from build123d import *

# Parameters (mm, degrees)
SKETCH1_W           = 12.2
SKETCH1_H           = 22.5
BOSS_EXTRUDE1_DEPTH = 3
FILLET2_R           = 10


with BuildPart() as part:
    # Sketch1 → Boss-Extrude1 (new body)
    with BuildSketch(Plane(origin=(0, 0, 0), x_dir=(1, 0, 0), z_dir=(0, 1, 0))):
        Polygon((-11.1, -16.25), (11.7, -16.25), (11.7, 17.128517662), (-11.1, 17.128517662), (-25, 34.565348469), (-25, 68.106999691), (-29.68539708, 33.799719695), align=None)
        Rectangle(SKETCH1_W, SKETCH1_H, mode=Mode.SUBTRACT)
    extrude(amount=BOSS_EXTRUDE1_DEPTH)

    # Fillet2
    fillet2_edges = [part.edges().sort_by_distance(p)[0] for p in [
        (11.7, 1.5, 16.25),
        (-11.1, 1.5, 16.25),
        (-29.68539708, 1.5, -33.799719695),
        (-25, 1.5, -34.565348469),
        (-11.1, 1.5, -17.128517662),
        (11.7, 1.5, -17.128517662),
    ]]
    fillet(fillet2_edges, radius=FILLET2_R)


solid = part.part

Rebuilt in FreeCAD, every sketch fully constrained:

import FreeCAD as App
import Part
import Sketcher
from FreeCAD import Vector
Q = App.Units.Quantity


def edges_at(feature, points):
    """Names of the edges that pass closest to the given points."""
    edges = feature.Shape.Edges
    near = lambda p: min(range(len(edges)), key=lambda i: edges[i].distToShape(Part.Vertex(*p))[0])
    return sorted({f"Edge{near(p) + 1}" for p in points})

doc = App.newDocument("Part")
body = doc.addObject("PartDesign::Body", "Body")

# Sketch on XZ plane
sketch1 = body.newObject("Sketcher::SketchObject", "Sketch")
sketch1.AttachmentSupport = (doc.getObject("XZ_Plane"), [""])
sketch1.MapMode = "FlatFace"
sketch1.addGeometry([
    Part.LineSegment(Vector(-11, 16, 0), Vector(12, 16, 0)),  # 0
    Part.LineSegment(Vector(12, 16, 0), Vector(12, -17, 0)),  # 1
    Part.LineSegment(Vector(12, -17, 0), Vector(-11, -17, 0)),  # 2
    Part.LineSegment(Vector(-11, -17, 0), Vector(-25, -35, 0)),  # 3
    Part.LineSegment(Vector(-25, -35, 0), Vector(-25, -68, 0)),  # 4
    Part.LineSegment(Vector(-25, -68, 0), Vector(-30, -34, 0)),  # 5
    Part.LineSegment(Vector(-30, -34, 0), Vector(-11, 16, 0)),  # 6
    Part.LineSegment(Vector(6, 11, 0), Vector(-6, 11, 0)),  # 7
    Part.LineSegment(Vector(-6, 11, 0), Vector(-6, -11, 0)),  # 8
    Part.LineSegment(Vector(-6, -11, 0), Vector(6, -11, 0)),  # 9
    Part.LineSegment(Vector(6, -11, 0), Vector(6, 11, 0)),  # 10
], False)
sketch1.addConstraint([
    Sketcher.Constraint("Coincident", 0, 2, 1, 1),
    Sketcher.Constraint("Coincident", 1, 2, 2, 1),
    Sketcher.Constraint("Coincident", 2, 2, 3, 1),
    Sketcher.Constraint("Coincident", 3, 2, 4, 1),
    Sketcher.Constraint("Coincident", 4, 2, 5, 1),
    Sketcher.Constraint("Coincident", 5, 2, 6, 1),
    Sketcher.Constraint("Coincident", 6, 2, 0, 1),
    Sketcher.Constraint("Coincident", 7, 2, 8, 1),
    Sketcher.Constraint("Coincident", 8, 2, 9, 1),
    Sketcher.Constraint("Coincident", 9, 2, 10, 1),
    Sketcher.Constraint("Coincident", 10, 2, 7, 1),
    Sketcher.Constraint("Horizontal", 0),
    Sketcher.Constraint("Vertical", 1),
    Sketcher.Constraint("Horizontal", 2),
    Sketcher.Constraint("Vertical", 4),
    Sketcher.Constraint("Horizontal", 7),
    Sketcher.Constraint("Vertical", 8),
    Sketcher.Constraint("Horizontal", 9),
    Sketcher.Constraint("Vertical", 10),
    Sketcher.Constraint("Symmetric", 7, 2, 9, 2, -1, 1),
    Sketcher.Constraint("Vertical", 2, 2, 6, 2),
    Sketcher.Constraint("DistanceX", 0, 1, 0, 2, Q("22.8 mm")),
    Sketcher.Constraint("DistanceX", 7, 2, 7, 1, Q("12.2 mm")),
    Sketcher.Constraint("DistanceY", 8, 2, 8, 1, Q("22.5 mm")),
    Sketcher.Constraint("DistanceX", 3, 2, -1, 1, Q("25 mm")),
    Sketcher.Constraint("DistanceX", 6, 2, 7, 2, Q("5 mm")),
    Sketcher.Constraint("DistanceY", 7, 2, 6, 2, Q("5 mm")),
    Sketcher.Constraint("DistanceY", 4, 2, -1, 1, Q("68.107 mm")),
    Sketcher.Constraint("DistanceY", 4, 2, 4, 1, Q("33.541651 mm")),
    Sketcher.Constraint("Distance", 3, Q("22.299172 mm")),
    Sketcher.Constraint("DistanceY", 5, 2, -1, 1, Q("33.79972 mm")),
    Sketcher.Constraint("Distance", 5, Q("34.625748 mm")),
])
pad1 = body.newObject("PartDesign::Pad", "Pad")
pad1.Profile = sketch1
pad1.Length = 3
pad1.Reversed = True
doc.recompute()

fillet = body.newObject("PartDesign::Fillet", "Fillet")
fillet.Base = (pad1, edges_at(pad1, [
    (11.7, 1.5, 16.25),
    (-11.1, 1.5, 16.25),
    (-29.685, 1.5, -33.8),
    (-25, 1.5, -34.565),
    (-11.1, 1.5, -17.129),
    (11.7, 1.5, -17.129),
]))
fillet.Radius = 10

doc.recompute()
